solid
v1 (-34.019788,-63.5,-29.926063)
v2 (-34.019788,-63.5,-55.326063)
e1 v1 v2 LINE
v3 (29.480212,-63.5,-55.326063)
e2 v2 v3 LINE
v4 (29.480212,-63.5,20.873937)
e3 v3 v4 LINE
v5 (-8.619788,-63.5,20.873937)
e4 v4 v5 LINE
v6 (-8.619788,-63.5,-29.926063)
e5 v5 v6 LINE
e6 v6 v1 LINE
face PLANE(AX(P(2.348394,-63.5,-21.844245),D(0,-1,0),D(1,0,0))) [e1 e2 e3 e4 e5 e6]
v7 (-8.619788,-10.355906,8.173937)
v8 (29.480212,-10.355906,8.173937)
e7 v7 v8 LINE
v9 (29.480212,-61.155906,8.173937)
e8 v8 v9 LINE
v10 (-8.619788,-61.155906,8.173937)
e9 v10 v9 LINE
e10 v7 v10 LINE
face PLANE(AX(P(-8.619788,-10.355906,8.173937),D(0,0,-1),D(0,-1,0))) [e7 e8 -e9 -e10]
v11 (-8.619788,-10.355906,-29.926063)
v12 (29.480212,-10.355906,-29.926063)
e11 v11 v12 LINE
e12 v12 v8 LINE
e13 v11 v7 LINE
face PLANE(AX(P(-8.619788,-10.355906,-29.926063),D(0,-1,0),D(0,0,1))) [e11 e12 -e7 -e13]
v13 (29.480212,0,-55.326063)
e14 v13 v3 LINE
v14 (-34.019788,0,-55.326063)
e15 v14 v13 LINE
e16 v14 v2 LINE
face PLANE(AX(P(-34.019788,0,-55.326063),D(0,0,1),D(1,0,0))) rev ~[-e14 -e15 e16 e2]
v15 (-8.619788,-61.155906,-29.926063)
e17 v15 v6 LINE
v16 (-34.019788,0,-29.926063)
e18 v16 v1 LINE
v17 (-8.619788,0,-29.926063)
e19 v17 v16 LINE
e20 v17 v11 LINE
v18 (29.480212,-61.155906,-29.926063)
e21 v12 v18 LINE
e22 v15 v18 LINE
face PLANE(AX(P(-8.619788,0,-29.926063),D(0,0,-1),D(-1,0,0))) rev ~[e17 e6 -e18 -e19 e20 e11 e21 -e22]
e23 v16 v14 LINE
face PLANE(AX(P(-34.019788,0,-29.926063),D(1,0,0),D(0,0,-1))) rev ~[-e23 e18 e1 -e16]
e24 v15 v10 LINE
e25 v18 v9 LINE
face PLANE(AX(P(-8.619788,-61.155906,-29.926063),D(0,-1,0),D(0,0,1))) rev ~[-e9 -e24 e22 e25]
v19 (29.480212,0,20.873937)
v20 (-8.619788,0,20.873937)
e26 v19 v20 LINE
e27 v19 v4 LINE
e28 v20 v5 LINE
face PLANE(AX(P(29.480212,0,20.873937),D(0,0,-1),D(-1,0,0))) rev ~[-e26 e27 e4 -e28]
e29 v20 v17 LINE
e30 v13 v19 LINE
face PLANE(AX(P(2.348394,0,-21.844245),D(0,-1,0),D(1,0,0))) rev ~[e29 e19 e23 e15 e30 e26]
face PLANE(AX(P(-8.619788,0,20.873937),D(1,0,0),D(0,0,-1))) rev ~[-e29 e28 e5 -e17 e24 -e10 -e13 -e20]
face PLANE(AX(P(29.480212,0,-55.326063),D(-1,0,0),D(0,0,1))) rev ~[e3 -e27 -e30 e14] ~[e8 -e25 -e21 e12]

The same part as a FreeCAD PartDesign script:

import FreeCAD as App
import Part
import Sketcher
from FreeCAD import Vector
Q = App.Units.Quantity

doc = App.newDocument("Part")
body = doc.addObject("PartDesign::Body", "Body")

# Sketch on XZ plane
sketch1 = body.newObject("Sketcher::SketchObject", "Sketch")
sketch1.AttachmentSupport = (doc.getObject("XZ_Plane"), [""])
sketch1.MapMode = "FlatFace"
sketch1.addGeometry([
    Part.LineSegment(Vector(-34.019788, -29.926063, 0), Vector(-34.019788, -55.326063, 0)),  # 0
    Part.LineSegment(Vector(-34.019788, -55.326063, 0), Vector(29.480212, -55.326063, 0)),  # 1
    Part.LineSegment(Vector(29.480212, -55.326063, 0), Vector(29.480212, 20.873937, 0)),  # 2
    Part.LineSegment(Vector(29.480212, 20.873937, 0), Vector(-8.619788, 20.873937, 0)),  # 3
    Part.LineSegment(Vector(-8.619788, 20.873937, 0), Vector(-8.619788, -29.926063, 0)),  # 4
    Part.LineSegment(Vector(-8.619788, -29.926063, 0), Vector(-34.019788, -29.926063, 0)),  # 5
], False)
sketch1.addConstraint([
    Sketcher.Constraint("Coincident", 0, 2, 1, 1),
    Sketcher.Constraint("Coincident", 1, 2, 2, 1),
    Sketcher.Constraint("Coincident", 2, 2, 3, 1),
    Sketcher.Constraint("Coincident", 3, 2, 4, 1),
    Sketcher.Constraint("Coincident", 4, 2, 5, 1),
    Sketcher.Constraint("Coincident", 5, 2, 0, 1),
    Sketcher.Constraint("Vertical", 0),
    Sketcher.Constraint("Horizontal", 1),
    Sketcher.Constraint("Vertical", 2),
    Sketcher.Constraint("Horizontal", 3),
    Sketcher.Constraint("Vertical", 4),
    Sketcher.Constraint("Horizontal", 5),
    Sketcher.Constraint("Equal", 5, 0),
    Sketcher.Constraint("DistanceX", 5, 2, 5, 1, Q("1 in")),
    Sketcher.Constraint("DistanceY", 2, 1, 2, 2, Q("3 in")),
    Sketcher.Constraint("DistanceX", 1, 1, 1, 2, Q("2.5 in")),
    Sketcher.Constraint("DistanceX", 0, 2, -1, 1, 34.019788),
    Sketcher.Constraint("DistanceY", 0, 2, -1, 1, 55.326063),
])
pad1 = body.newObject("PartDesign::Pad", "Pad")
pad1.Profile = sketch1
pad1.Length = Q("2.5 in")

# Sketch on YZ plane
sketch2 = body.newObject("Sketcher::SketchObject", "Sketch001")
sketch2.AttachmentSupport = (doc.getObject("YZ_Plane"), [""])
sketch2.MapMode = "FlatFace"
sketch2.AttachmentOffset = App.Placement(Vector(0, 0, -8.619788), App.Rotation())
sketch2.addGeometry([
    Part.LineSegment(Vector(-10.355906, 8.173937, 0), Vector(-10.355906, -29.926063, 0)),
    Part.LineSegment(Vector(-10.355906, -29.926063, 0), Vector(-61.155906, -29.926063, 0)),
    Part.LineSegment(Vector(-61.155906, -29.926063, 0), Vector(-61.155906, 8.173937, 0)),
    Part.LineSegment(Vector(-61.155906, 8.173937, 0), Vector(-10.355906, 8.173937, 0)),
], False)
sketch2.addConstraint([
    Sketcher.Constraint("Coincident", 0, 2, 1, 1),
    Sketcher.Constraint("Coincident", 1, 2, 2, 1),
    Sketcher.Constraint("Coincident", 2, 2, 3, 1),
    Sketcher.Constraint("Coincident", 3, 2, 0, 1),
    Sketcher.Constraint("Vertical", 0),
    Sketcher.Constraint("Horizontal", 1),
    Sketcher.Constraint("Vertical", 2),
    Sketcher.Constraint("Horizontal", 3),
    Sketcher.Constraint("DistanceX", 1, 2, 1, 1, Q("2 in")),
    Sketcher.Constraint("DistanceY", 0, 2, 0, 1, Q("1.5 in")),
    Sketcher.Constraint("DistanceX", 0, 2, -1, 1, 10.355906),
    Sketcher.Constraint("DistanceY", 0, 2, -1, 1, 29.926063),
])
pocket1 = body.newObject("PartDesign::Pocket", "Pocket")
pocket1.Profile = sketch2
pocket1.Length = Q("2 in")
pocket1.Reversed = True

doc.recompute()
